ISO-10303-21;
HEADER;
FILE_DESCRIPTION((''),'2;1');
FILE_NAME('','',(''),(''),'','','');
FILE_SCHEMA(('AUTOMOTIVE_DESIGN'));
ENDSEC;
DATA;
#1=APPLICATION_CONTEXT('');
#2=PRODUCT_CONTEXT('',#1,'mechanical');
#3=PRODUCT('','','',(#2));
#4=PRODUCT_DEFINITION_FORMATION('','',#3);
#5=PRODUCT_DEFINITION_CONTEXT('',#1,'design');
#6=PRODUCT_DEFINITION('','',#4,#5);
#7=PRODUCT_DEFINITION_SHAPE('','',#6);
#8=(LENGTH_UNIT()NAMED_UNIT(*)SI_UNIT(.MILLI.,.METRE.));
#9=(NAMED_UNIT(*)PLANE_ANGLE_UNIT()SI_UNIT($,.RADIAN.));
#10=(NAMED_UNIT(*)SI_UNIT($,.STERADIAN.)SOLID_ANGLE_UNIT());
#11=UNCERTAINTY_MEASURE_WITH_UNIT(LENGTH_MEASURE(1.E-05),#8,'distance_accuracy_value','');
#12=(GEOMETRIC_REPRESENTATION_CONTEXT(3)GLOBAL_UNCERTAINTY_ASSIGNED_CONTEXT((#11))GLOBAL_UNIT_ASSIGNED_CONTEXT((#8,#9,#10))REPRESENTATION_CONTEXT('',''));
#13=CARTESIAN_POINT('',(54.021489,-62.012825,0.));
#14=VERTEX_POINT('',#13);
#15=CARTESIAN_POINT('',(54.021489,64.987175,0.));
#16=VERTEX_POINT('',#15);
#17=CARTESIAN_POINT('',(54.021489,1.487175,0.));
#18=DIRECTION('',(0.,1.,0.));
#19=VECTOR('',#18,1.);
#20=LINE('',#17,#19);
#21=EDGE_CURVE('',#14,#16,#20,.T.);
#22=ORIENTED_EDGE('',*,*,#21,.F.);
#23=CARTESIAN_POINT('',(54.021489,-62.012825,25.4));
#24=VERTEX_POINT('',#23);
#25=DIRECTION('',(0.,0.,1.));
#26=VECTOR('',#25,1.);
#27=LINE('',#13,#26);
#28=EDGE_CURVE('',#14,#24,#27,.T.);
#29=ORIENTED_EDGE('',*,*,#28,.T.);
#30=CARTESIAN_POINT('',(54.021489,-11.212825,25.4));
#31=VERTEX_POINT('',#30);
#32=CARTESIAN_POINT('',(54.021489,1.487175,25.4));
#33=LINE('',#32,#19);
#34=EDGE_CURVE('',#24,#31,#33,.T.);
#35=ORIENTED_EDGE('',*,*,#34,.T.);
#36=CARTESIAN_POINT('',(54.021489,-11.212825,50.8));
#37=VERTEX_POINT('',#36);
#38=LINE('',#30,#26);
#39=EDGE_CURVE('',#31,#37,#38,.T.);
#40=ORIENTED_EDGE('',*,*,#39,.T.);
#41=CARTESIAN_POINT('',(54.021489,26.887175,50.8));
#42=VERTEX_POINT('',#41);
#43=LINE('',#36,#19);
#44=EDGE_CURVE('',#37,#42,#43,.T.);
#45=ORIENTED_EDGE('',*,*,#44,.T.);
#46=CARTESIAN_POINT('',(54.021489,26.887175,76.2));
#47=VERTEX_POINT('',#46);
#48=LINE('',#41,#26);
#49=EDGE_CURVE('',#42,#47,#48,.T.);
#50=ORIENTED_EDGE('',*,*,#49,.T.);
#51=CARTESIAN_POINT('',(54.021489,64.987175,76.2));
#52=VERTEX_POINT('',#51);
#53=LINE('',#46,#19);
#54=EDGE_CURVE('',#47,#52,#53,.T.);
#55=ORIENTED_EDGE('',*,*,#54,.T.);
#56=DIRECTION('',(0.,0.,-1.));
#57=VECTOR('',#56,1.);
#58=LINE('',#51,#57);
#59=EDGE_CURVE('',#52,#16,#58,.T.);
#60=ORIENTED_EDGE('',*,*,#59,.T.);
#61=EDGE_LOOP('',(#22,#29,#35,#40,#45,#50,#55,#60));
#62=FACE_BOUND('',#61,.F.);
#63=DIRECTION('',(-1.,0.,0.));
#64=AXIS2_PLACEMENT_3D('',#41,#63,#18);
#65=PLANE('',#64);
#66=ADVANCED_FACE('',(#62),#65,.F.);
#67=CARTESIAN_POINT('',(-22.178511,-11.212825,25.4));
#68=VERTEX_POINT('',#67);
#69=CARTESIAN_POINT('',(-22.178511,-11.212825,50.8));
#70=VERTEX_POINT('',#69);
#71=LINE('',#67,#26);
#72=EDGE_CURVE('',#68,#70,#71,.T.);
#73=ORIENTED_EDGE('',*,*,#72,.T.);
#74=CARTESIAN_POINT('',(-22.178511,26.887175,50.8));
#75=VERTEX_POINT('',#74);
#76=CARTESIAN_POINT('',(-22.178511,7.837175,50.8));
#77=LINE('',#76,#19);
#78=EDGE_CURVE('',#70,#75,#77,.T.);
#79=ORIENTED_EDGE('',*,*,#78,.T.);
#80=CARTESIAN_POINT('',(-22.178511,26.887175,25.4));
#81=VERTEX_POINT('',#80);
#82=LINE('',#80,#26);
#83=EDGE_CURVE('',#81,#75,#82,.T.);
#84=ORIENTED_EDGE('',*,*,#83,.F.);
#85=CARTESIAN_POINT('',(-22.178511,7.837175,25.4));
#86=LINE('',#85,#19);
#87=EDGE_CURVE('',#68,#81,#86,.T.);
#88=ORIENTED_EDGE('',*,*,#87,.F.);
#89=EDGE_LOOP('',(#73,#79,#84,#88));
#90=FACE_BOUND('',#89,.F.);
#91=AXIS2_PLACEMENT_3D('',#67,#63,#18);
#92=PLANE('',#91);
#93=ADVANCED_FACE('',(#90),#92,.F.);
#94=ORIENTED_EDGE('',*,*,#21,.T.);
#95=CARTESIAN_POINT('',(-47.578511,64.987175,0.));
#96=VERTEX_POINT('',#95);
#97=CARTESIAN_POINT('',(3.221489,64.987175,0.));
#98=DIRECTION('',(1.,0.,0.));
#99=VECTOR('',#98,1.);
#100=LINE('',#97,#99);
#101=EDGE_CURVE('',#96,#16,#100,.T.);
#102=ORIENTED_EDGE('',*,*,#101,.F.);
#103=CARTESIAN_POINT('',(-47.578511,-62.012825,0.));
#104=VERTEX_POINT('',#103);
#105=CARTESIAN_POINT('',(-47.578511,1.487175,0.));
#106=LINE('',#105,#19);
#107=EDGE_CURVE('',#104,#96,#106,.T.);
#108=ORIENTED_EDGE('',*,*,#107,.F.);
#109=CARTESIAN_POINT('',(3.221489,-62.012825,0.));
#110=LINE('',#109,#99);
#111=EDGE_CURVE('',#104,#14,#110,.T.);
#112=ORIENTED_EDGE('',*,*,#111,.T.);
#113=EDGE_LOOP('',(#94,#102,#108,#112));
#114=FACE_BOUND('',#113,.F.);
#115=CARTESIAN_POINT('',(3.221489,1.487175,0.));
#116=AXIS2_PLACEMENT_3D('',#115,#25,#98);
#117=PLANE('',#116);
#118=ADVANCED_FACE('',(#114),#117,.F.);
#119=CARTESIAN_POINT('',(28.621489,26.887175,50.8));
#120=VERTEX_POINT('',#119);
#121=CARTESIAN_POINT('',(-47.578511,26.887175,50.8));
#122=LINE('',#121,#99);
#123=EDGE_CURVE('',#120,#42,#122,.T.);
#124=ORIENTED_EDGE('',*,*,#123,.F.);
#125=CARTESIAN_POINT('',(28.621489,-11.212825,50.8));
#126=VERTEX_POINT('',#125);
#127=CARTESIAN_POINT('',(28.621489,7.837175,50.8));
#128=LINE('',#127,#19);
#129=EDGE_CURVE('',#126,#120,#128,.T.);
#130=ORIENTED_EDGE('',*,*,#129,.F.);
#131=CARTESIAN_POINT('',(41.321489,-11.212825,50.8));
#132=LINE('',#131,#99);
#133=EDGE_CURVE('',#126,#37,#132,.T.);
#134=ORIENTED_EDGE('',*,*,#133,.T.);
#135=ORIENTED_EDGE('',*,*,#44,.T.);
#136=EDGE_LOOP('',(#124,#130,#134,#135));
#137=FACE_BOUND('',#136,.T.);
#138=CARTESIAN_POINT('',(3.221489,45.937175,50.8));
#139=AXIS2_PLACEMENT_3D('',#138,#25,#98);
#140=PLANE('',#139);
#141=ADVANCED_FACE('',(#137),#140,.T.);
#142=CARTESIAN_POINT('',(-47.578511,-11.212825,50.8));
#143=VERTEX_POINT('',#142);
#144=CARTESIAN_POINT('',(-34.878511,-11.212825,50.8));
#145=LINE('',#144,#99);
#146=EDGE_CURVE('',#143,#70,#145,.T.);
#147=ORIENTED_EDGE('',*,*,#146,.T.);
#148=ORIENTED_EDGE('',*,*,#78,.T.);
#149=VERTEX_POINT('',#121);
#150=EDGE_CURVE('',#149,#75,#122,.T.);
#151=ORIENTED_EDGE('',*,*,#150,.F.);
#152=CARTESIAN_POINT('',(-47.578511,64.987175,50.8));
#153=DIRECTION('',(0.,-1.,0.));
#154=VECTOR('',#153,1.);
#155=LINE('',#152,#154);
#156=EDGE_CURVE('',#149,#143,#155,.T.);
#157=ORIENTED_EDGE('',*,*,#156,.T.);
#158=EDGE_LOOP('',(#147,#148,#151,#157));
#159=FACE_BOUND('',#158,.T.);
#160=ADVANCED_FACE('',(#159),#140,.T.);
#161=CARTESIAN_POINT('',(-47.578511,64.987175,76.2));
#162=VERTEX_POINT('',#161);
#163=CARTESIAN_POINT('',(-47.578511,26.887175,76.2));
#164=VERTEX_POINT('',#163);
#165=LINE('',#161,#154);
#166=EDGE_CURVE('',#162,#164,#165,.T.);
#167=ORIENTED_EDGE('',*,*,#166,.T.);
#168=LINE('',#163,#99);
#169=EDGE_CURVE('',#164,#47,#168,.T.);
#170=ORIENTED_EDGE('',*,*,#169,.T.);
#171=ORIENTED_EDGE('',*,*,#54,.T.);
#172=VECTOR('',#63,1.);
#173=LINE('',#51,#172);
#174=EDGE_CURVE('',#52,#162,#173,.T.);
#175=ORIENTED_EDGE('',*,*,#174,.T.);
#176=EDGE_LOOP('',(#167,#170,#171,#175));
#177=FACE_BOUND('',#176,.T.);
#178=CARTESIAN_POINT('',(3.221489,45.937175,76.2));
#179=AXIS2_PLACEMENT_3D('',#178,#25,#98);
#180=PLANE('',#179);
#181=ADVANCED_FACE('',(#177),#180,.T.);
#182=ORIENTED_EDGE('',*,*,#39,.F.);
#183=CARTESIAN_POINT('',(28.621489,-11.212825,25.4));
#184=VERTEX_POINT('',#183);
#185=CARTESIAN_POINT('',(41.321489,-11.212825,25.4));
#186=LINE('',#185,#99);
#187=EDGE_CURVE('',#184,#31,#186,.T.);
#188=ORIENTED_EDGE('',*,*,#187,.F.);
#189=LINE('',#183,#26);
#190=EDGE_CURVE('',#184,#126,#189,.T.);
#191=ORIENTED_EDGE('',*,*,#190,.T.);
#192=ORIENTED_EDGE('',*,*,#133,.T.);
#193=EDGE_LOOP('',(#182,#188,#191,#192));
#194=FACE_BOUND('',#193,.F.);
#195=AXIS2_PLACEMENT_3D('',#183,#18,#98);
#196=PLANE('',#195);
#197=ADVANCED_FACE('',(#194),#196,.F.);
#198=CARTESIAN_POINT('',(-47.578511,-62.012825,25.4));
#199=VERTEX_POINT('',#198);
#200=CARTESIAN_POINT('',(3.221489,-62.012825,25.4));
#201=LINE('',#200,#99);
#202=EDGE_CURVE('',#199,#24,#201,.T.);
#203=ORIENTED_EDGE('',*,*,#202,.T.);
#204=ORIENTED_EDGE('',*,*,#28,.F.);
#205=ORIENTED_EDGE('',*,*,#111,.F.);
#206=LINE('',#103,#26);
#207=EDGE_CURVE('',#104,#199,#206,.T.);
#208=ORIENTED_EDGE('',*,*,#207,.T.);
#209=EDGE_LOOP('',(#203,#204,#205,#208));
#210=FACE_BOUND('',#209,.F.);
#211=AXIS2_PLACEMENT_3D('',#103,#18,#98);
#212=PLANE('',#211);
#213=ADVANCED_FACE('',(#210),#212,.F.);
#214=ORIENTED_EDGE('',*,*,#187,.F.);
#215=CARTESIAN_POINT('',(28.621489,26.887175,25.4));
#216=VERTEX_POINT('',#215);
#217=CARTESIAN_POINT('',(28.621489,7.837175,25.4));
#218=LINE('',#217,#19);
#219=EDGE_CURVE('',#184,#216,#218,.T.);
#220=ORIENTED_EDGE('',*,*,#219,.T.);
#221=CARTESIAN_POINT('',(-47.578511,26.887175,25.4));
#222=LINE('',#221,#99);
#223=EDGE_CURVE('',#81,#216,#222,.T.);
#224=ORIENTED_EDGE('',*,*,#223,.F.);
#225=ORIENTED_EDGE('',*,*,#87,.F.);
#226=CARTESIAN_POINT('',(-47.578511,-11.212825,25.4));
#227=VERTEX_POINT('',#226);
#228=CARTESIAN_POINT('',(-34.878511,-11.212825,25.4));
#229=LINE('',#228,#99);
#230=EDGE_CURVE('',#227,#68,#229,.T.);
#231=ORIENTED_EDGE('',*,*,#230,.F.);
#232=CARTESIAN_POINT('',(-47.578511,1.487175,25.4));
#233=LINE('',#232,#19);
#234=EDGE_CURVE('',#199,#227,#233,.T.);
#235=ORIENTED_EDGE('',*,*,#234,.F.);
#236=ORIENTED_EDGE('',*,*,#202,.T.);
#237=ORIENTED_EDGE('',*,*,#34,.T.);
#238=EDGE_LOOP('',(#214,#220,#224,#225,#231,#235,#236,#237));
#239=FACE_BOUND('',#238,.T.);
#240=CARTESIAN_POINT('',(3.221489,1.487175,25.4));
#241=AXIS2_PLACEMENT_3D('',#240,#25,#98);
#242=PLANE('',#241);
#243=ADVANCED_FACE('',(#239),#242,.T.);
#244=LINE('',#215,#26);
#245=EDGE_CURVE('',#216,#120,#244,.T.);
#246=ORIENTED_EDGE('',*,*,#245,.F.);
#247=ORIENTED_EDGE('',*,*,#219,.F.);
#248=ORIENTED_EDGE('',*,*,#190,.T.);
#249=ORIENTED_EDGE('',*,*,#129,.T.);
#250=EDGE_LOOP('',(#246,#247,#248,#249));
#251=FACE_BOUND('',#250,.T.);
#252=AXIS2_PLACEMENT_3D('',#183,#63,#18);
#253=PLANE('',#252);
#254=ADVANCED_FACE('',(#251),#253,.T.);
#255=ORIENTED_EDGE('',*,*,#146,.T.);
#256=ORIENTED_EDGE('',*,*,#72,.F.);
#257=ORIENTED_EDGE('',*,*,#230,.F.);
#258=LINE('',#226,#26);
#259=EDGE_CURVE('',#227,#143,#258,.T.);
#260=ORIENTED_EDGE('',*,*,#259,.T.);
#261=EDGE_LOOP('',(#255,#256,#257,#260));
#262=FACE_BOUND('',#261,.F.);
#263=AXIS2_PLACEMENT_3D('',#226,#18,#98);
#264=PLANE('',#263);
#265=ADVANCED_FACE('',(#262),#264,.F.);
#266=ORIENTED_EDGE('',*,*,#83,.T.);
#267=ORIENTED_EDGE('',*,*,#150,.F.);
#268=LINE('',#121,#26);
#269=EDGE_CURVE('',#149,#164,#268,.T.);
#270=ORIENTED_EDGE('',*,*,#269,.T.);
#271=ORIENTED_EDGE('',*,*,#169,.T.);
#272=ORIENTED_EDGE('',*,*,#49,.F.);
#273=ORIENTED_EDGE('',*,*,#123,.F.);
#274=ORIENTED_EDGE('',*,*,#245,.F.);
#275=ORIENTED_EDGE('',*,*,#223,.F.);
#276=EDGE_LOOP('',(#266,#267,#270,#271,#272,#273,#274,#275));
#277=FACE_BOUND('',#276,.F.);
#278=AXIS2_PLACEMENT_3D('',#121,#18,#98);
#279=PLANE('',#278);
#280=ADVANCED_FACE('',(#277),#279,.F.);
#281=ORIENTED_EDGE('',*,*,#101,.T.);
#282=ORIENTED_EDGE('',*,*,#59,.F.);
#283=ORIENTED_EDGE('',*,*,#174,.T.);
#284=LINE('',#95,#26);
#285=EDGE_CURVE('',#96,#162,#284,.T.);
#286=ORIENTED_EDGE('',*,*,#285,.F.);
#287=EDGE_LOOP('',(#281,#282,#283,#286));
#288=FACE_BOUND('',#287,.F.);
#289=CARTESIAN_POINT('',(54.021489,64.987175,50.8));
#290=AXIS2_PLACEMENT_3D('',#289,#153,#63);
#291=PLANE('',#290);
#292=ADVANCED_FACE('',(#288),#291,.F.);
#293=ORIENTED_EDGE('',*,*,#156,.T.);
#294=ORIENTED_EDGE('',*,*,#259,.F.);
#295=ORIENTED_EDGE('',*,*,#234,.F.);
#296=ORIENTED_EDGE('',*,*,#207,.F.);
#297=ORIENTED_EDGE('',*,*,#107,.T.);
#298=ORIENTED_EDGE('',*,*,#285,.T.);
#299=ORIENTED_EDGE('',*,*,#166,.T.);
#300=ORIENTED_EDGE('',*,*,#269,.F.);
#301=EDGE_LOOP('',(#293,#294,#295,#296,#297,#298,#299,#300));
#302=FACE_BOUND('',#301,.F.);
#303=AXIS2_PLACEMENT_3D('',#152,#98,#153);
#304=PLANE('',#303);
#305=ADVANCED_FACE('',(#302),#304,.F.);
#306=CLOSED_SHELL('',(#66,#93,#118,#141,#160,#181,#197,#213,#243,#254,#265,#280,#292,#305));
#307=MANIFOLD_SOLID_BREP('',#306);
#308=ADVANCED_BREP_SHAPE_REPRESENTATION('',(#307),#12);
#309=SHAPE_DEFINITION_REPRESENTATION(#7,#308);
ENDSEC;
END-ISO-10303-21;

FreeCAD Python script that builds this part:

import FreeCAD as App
import Part
import Sketcher
from FreeCAD import Vector
Q = App.Units.Quantity

doc = App.newDocument("Part")
body = doc.addObject("PartDesign::Body", "Body")

sketch1 = body.newObject("Sketcher::SketchObject", "Sketch")
sketch1.AttachmentSupport = (doc.getObject("XY_Plane"), [""])
sketch1.MapMode = "FlatFace"
sketch1.addGeometry(Part.LineSegment(Vector(-48, 65, 0), Vector(-48, -62, 0)), False)
sketch1.addGeometry(Part.LineSegment(Vector(-48, -62, 0), Vector(54, -62, 0)), False)
sketch1.addGeometry(Part.LineSegment(Vector(54, -62, 0), Vector(54, 65, 0)), False)
sketch1.addGeometry(Part.LineSegment(Vector(54, 65, 0), Vector(-48, 65, 0)), False)
sketch1.addConstraint(Sketcher.Constraint("Coincident", 0, 2, 1, 1))
sketch1.addConstraint(Sketcher.Constraint("Coincident", 1, 2, 2, 1))
sketch1.addConstraint(Sketcher.Constraint("Coincident", 2, 2, 3, 1))
sketch1.addConstraint(Sketcher.Constraint("Coincident", 3, 2, 0, 1))
sketch1.addConstraint(Sketcher.Constraint("Vertical", 0))
sketch1.addConstraint(Sketcher.Constraint("Horizontal", 1))
sketch1.addConstraint(Sketcher.Constraint("Vertical", 2))
sketch1.addConstraint(Sketcher.Constraint("Horizontal", 3))
sketch1.addConstraint(Sketcher.Constraint("DistanceX", 1, 1, 1, 2, Q("4 in")))
sketch1.addConstraint(Sketcher.Constraint("DistanceY", 0, 2, 0, 1, Q("5 in")))
sketch1.addConstraint(Sketcher.Constraint("DistanceX", 0, 2, -1, 1, Q("47.578511 mm")))
sketch1.addConstraint(Sketcher.Constraint("DistanceY", 0, 2, -1, 1, Q("62.012825 mm")))
pad1 = body.newObject("PartDesign::Pad", "Pad")
pad1.Profile = sketch1
pad1.Length = Q("1 in")

sketch2 = body.newObject("Sketcher::SketchObject", "Sketch001")
sketch2.AttachmentSupport = (doc.getObject("XY_Plane"), [""])
sketch2.MapMode = "FlatFace"
sketch2.AttachmentOffset = App.Placement(Vector(0, 0, 1 * 25.4), App.Rotation())
sketch2.addGeometry(Part.LineSegment(Vector(54, 65, 0), Vector(-48, 65, 0)), False)
sketch2.addGeometry(Part.LineSegment(Vector(-48, 65, 0), Vector(-48, -11, 0)), False)
sketch2.addGeometry(Part.LineSegment(Vector(-48, -11, 0), Vector(-22, -11, 0)), False)
sketch2.addGeometry(Part.LineSegment(Vector(-22, -11, 0), Vector(-22, 27, 0)), False)
sketch2.addGeometry(Part.LineSegment(Vector(-22, 27, 0), Vector(29, 27, 0)), False)
sketch2.addGeometry(Part.LineSegment(Vector(29, 27, 0), Vector(29, -11, 0)), False)
sketch2.addGeometry(Part.LineSegment(Vector(29, -11, 0), Vector(54, -11, 0)), False)
sketch2.addGeometry(Part.LineSegment(Vector(54, -11, 0), Vector(54, 65, 0)), False)
sketch2.addConstraint(Sketcher.Constraint("Coincident", 0, 2, 1, 1))
sketch2.addConstraint(Sketcher.Constraint("Coincident", 1, 2, 2, 1))
sketch2.addConstraint(Sketcher.Constraint("Coincident", 2, 2, 3, 1))
sketch2.addConstraint(Sketcher.Constraint("Coincident", 3, 2, 4, 1))
sketch2.addConstraint(Sketcher.Constraint("Coincident", 4, 2, 5, 1))
sketch2.addConstraint(Sketcher.Constraint("Coincident", 5, 2, 6, 1))
sketch2.addConstraint(Sketcher.Constraint("Coincident", 6, 2, 7, 1))
sketch2.addConstraint(Sketcher.Constraint("Coincident", 7, 2, 0, 1))
sketch2.addConstraint(Sketcher.Constraint("Horizontal", 0))
sketch2.addConstraint(Sketcher.Constraint("Vertical", 1))
sketch2.addConstraint(Sketcher.Constraint("Horizontal", 2))
sketch2.addConstraint(Sketcher.Constraint("Vertical", 3))
sketch2.addConstraint(Sketcher.Constraint("Horizontal", 4))
sketch2.addConstraint(Sketcher.Constraint("Vertical", 5))
sketch2.addConstraint(Sketcher.Constraint("Horizontal", 6))
sketch2.addConstraint(Sketcher.Constraint("Vertical", 7))
sketch2.addConstraint(Sketcher.Constraint("Horizontal", 2, 2, 5, 2))
sketch2.addConstraint(Sketcher.Constraint("Equal", 2, 6))
sketch2.addConstraint(Sketcher.Constraint("DistanceX", 0, 2, 0, 1, Q("4 in")))
sketch2.addConstraint(Sketcher.Constraint("DistanceX", 2, 1, 2, 2, Q("1 in")))
sketch2.addConstraint(Sketcher.Constraint("DistanceY", 1, 2, 1, 1, Q("3 in")))
sketch2.addConstraint(Sketcher.Constraint("DistanceY", 3, 1, 3, 2, Q("1.5 in")))
sketch2.addConstraint(Sketcher.Constraint("DistanceX", 0, 2, -1, 1, Q("47.578511 mm")))
sketch2.addConstraint(Sketcher.Constraint("DistanceY", -1, 1, 0, 2, Q("64.987175 mm")))
pad2 = body.newObject("PartDesign::Pad", "Pad001")
pad2.Profile = sketch2
pad2.Length = Q("1 in")

sketch3 = body.newObject("Sketcher::SketchObject", "Sketch002")
sketch3.AttachmentSupport = (doc.getObject("XY_Plane"), [""])
sketch3.MapMode = "FlatFace"
sketch3.AttachmentOffset = App.Placement(Vector(0, 0, 2 * 25.4), App.Rotation())
sketch3.addGeometry(Part.LineSegment(Vector(54, 65, 0), Vector(-48, 65, 0)), False)
sketch3.addGeometry(Part.LineSegment(Vector(-48, 65, 0), Vector(-48, 27, 0)), False)
sketch3.addGeometry(Part.LineSegment(Vector(-48, 27, 0), Vector(54, 27, 0)), False)
sketch3.addGeometry(Part.LineSegment(Vector(54, 27, 0), Vector(54, 65, 0)), False)
sketch3.addConstraint(Sketcher.Constraint("Coincident", 0, 2, 1, 1))
sketch3.addConstraint(Sketcher.Constraint("Coincident", 1, 2, 2, 1))
sketch3.addConstraint(Sketcher.Constraint("Coincident", 2, 2, 3, 1))
sketch3.addConstraint(Sketcher.Constraint("Coincident", 3, 2, 0, 1))
sketch3.addConstraint(Sketcher.Constraint("Horizontal", 0))
sketch3.addConstraint(Sketcher.Constraint("Vertical", 1))
sketch3.addConstraint(Sketcher.Constraint("Horizontal", 2))
sketch3.addConstraint(Sketcher.Constraint("Vertical", 3))
sketch3.addConstraint(Sketcher.Constraint("DistanceX", 0, 2, 0, 1, Q("4 in")))
sketch3.addConstraint(Sketcher.Constraint("DistanceY", 1, 2, 1, 1, Q("1.5 in")))
sketch3.addConstraint(Sketcher.Constraint("DistanceX", 0, 2, -1, 1, Q("47.578511 mm")))
sketch3.addConstraint(Sketcher.Constraint("DistanceY", -1, 1, 0, 2, Q("64.987175 mm")))
pad3 = body.newObject("PartDesign::Pad", "Pad002")
pad3.Profile = sketch3
pad3.Length = Q("1 in")

doc.recompute()
